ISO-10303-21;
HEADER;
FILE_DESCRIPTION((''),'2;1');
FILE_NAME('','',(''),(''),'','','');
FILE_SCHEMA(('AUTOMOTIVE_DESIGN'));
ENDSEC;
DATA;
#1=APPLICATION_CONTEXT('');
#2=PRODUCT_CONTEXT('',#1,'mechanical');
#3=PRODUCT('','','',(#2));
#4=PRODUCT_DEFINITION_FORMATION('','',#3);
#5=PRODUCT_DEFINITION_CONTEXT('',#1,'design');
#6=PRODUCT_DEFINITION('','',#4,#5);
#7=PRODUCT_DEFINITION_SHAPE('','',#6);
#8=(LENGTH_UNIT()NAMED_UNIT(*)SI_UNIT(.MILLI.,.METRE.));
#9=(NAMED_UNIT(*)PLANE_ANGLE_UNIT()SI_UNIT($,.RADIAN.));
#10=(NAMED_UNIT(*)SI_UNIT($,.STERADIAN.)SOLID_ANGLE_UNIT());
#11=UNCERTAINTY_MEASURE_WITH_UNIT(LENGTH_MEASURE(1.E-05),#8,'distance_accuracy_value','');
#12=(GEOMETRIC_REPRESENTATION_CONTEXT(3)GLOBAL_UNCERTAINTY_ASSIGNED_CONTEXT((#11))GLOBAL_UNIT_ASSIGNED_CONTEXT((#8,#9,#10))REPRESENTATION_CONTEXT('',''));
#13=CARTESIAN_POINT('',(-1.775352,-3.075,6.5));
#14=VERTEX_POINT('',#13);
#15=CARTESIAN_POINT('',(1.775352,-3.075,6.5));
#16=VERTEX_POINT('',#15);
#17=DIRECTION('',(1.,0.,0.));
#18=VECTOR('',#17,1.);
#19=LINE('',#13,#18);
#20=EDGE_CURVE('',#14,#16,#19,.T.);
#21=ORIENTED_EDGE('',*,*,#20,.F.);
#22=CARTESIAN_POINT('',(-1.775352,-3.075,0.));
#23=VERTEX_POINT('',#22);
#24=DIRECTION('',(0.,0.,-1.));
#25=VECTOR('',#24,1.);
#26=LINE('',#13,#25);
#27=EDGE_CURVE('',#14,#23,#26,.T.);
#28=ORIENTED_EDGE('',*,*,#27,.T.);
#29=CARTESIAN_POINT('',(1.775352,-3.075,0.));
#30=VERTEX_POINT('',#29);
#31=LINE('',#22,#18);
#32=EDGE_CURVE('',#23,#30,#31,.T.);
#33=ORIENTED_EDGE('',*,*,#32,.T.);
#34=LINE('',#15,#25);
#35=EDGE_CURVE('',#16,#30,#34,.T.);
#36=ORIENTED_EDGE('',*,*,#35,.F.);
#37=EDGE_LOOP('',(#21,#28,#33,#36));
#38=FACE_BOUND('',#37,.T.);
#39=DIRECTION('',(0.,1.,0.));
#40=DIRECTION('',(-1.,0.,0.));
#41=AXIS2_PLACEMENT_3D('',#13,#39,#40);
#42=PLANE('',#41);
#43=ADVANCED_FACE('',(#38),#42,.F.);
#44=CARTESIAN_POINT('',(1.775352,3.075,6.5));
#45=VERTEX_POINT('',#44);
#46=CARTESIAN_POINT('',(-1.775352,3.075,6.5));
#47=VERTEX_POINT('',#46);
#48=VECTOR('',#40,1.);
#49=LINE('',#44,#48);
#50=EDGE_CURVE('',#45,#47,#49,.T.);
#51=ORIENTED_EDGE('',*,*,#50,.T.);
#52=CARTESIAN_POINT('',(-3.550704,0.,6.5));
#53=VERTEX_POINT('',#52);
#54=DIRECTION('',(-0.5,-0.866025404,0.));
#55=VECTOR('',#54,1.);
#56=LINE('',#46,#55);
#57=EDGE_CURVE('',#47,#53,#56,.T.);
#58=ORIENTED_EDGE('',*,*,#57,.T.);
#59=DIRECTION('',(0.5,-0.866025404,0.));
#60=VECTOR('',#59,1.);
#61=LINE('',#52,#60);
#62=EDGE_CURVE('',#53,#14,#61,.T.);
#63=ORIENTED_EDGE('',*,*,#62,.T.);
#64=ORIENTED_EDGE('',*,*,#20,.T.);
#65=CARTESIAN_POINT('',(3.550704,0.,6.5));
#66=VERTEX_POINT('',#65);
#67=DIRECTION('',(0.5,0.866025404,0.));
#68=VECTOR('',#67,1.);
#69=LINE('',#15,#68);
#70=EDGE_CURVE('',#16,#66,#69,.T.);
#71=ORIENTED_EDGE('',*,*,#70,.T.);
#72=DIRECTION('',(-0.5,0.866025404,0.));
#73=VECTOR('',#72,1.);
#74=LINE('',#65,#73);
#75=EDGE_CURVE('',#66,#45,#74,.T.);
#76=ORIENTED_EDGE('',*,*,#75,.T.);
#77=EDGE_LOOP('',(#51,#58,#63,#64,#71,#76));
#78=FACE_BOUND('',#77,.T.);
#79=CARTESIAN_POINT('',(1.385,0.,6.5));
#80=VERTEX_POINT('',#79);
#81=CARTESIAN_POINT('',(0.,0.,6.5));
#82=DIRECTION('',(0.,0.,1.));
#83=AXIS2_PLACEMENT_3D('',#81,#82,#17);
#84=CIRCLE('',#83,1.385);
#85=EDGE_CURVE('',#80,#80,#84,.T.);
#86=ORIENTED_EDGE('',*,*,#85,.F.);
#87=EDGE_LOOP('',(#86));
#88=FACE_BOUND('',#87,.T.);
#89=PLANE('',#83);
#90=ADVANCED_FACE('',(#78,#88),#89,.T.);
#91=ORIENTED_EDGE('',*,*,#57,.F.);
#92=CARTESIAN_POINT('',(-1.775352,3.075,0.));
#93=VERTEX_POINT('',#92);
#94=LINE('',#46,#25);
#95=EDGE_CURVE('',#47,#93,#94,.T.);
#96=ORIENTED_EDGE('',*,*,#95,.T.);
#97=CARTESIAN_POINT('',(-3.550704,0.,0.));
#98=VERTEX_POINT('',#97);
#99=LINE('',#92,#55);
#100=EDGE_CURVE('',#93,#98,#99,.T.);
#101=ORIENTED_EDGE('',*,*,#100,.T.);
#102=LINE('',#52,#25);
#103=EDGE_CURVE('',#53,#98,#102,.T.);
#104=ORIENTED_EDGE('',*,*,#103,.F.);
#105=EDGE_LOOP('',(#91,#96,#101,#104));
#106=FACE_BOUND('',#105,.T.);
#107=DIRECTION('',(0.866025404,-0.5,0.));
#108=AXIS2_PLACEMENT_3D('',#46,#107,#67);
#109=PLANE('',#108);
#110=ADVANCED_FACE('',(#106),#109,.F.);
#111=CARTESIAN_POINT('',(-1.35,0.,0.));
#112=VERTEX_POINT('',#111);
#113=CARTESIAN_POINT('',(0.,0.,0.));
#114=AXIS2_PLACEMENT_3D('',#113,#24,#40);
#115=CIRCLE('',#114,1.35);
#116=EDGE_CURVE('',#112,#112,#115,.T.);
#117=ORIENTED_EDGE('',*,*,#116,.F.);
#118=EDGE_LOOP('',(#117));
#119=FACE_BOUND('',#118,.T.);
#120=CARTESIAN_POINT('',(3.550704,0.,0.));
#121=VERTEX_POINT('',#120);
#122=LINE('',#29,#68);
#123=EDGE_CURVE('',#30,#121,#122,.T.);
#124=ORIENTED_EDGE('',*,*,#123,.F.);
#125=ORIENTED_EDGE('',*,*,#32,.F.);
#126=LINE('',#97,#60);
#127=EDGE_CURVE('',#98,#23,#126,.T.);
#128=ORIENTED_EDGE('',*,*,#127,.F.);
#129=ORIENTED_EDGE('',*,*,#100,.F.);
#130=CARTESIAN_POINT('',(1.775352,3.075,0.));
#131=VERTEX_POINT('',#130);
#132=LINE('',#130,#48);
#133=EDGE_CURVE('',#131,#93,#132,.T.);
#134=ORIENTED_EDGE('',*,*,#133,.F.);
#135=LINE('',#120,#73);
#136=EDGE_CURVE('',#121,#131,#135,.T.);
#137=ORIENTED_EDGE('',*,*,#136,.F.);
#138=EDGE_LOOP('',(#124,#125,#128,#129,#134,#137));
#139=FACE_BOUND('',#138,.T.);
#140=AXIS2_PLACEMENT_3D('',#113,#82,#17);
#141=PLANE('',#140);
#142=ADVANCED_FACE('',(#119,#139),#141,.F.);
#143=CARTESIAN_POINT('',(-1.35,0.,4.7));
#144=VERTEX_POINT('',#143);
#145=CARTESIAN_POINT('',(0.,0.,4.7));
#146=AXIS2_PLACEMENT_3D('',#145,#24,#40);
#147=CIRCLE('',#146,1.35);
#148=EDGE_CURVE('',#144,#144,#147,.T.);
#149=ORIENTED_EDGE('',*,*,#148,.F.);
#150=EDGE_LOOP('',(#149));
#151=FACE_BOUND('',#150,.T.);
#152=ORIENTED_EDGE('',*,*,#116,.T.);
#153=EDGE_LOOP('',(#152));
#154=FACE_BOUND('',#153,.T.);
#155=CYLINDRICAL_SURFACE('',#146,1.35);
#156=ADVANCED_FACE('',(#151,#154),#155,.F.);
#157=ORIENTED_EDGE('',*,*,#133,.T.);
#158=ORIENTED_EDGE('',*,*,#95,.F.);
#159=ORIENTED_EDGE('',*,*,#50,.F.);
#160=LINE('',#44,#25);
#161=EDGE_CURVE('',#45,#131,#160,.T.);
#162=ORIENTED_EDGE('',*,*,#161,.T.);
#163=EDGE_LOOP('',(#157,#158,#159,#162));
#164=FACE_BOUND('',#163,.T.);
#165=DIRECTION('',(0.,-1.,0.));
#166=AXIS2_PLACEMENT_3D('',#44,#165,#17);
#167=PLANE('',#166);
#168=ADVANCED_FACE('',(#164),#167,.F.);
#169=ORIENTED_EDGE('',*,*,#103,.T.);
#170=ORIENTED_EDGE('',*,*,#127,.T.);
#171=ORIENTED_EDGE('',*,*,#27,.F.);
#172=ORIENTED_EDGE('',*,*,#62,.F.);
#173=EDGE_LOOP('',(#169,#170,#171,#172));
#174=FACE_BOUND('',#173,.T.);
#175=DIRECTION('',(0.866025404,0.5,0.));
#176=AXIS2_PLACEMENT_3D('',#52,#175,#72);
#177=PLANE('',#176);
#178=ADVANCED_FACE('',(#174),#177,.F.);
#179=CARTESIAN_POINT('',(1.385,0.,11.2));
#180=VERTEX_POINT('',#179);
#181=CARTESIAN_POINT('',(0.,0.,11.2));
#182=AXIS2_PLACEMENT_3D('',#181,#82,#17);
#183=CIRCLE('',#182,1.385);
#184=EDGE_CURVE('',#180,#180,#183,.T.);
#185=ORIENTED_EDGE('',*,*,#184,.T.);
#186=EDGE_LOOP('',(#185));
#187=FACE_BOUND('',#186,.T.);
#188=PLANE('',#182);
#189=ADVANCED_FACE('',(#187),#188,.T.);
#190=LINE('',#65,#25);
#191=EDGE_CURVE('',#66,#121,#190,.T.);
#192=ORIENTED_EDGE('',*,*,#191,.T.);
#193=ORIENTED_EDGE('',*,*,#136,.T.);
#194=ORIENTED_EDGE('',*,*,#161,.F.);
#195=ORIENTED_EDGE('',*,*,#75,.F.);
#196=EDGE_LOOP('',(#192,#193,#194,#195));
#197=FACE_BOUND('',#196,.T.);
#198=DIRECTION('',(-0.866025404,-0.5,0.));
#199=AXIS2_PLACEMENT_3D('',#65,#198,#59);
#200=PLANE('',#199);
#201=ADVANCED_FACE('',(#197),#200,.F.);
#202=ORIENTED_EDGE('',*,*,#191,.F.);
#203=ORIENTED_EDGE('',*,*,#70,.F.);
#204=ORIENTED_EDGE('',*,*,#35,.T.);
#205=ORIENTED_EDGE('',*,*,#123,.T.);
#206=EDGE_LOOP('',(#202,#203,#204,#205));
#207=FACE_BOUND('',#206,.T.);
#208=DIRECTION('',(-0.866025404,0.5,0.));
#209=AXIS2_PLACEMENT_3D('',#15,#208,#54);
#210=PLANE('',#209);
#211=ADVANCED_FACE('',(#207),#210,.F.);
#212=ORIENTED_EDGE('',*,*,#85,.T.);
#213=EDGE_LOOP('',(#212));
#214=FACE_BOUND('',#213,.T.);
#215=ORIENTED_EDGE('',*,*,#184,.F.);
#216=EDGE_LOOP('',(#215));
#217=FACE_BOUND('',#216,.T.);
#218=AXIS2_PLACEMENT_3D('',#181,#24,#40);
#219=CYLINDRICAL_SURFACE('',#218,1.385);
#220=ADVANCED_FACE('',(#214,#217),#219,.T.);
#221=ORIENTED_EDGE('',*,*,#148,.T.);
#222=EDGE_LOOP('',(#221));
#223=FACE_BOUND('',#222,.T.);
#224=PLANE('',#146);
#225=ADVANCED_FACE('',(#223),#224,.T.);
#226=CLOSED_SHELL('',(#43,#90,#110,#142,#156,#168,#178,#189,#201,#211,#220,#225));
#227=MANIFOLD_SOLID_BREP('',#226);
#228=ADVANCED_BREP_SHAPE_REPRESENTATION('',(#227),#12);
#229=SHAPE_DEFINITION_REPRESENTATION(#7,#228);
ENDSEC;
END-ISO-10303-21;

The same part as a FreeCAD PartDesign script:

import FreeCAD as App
import Part
import Sketcher
from FreeCAD import Vector
Q = App.Units.Quantity

doc = App.newDocument("Part")
body = doc.addObject("PartDesign::Body", "Body")

# Sketch on XY plane
sketch1 = body.newObject("Sketcher::SketchObject", "Sketch")
sketch1.AttachmentSupport = (doc.getObject("XY_Plane"), [""])
sketch1.MapMode = "FlatFace"
sketch1.addGeometry([
    Part.LineSegment(Vector(3.550704, 0, 0), Vector(1.775352, 3.075, 0)),  # 0
    Part.LineSegment(Vector(1.775352, 3.075, 0), Vector(-1.775352, 3.075, 0)),  # 1
    Part.LineSegment(Vector(-1.775352, 3.075, 0), Vector(-3.550704, 0, 0)),  # 2
    Part.LineSegment(Vector(-3.550704, 0, 0), Vector(-1.775352, -3.075, 0)),  # 3
    Part.LineSegment(Vector(-1.775352, -3.075, 0), Vector(1.775352, -3.075, 0)),  # 4
    Part.LineSegment(Vector(1.775352, -3.075, 0), Vector(3.550704, 0, 0)),  # 5
], False)
sketch1.addConstraint([
    Sketcher.Constraint("Coincident", 0, 2, 1, 1),
    Sketcher.Constraint("Coincident", 1, 2, 2, 1),
    Sketcher.Constraint("Coincident", 2, 2, 3, 1),
    Sketcher.Constraint("Coincident", 3, 2, 4, 1),
    Sketcher.Constraint("Coincident", 4, 2, 5, 1),
    Sketcher.Constraint("Coincident", 5, 2, 0, 1),
    Sketcher.Constraint("Horizontal", 1),
    Sketcher.Constraint("Horizontal", 4),
    Sketcher.Constraint("Symmetric", 0, 2, 3, 2, -1, 1),
    Sketcher.Constraint("Symmetric", 2, 2, 5, 2, -1, 1),
    Sketcher.Constraint("PointOnObject", 2, 2, -1),
    Sketcher.Constraint("Parallel", 2, 5),
    Sketcher.Constraint("Vertical", 1, 2, 3, 2),
    Sketcher.Constraint("Angle", 0, Q("120 deg")),
    Sketcher.Constraint("DistanceY", 3, 2, 1, 2, Q("6.15 mm")),
    Sketcher.Constraint("DistanceX", 1, 2, 1, 1, Q("3.550704 mm")),
])
pad1 = body.newObject("PartDesign::Pad", "Pad")
pad1.Profile = sketch1
pad1.Length = 6.5

# Sketch on XY plane
sketch2 = body.newObject("Sketcher::SketchObject", "Sketch001")
sketch2.AttachmentSupport = (doc.getObject("XY_Plane"), [""])
sketch2.MapMode = "FlatFace"
sketch2.AttachmentOffset = App.Placement(Vector(0, 0, 6.5), App.Rotation())
sketch2.addGeometry(Part.Circle(Vector(0, 0, 0), Vector(0, 0, 1), 1.385), False)
sketch2.addConstraint([
    Sketcher.Constraint("Coincident", 0, 3, -1, 1),
    Sketcher.Constraint("Diameter", 0, Q("2.77 mm")),
])
pad2 = body.newObject("PartDesign::Pad", "Pad001")
pad2.Profile = sketch2
pad2.Length = 4.7

# Sketch on XY plane
sketch3 = body.newObject("Sketcher::SketchObject", "Sketch002")
sketch3.AttachmentSupport = (doc.getObject("XY_Plane"), [""])
sketch3.MapMode = "FlatFace"
sketch3.addGeometry(Part.Circle(Vector(0, 0, 0), Vector(0, 0, 1), 1.35), False)
sketch3.addConstraint([
    Sketcher.Constraint("Coincident", 0, 3, -1, 1),
    Sketcher.Constraint("Diameter", 0, Q("2.7 mm")),
])
pocket1 = body.newObject("PartDesign::Pocket", "Pocket")
pocket1.Profile = sketch3
pocket1.Length = 4.7
pocket1.Reversed = True

doc.recompute()
